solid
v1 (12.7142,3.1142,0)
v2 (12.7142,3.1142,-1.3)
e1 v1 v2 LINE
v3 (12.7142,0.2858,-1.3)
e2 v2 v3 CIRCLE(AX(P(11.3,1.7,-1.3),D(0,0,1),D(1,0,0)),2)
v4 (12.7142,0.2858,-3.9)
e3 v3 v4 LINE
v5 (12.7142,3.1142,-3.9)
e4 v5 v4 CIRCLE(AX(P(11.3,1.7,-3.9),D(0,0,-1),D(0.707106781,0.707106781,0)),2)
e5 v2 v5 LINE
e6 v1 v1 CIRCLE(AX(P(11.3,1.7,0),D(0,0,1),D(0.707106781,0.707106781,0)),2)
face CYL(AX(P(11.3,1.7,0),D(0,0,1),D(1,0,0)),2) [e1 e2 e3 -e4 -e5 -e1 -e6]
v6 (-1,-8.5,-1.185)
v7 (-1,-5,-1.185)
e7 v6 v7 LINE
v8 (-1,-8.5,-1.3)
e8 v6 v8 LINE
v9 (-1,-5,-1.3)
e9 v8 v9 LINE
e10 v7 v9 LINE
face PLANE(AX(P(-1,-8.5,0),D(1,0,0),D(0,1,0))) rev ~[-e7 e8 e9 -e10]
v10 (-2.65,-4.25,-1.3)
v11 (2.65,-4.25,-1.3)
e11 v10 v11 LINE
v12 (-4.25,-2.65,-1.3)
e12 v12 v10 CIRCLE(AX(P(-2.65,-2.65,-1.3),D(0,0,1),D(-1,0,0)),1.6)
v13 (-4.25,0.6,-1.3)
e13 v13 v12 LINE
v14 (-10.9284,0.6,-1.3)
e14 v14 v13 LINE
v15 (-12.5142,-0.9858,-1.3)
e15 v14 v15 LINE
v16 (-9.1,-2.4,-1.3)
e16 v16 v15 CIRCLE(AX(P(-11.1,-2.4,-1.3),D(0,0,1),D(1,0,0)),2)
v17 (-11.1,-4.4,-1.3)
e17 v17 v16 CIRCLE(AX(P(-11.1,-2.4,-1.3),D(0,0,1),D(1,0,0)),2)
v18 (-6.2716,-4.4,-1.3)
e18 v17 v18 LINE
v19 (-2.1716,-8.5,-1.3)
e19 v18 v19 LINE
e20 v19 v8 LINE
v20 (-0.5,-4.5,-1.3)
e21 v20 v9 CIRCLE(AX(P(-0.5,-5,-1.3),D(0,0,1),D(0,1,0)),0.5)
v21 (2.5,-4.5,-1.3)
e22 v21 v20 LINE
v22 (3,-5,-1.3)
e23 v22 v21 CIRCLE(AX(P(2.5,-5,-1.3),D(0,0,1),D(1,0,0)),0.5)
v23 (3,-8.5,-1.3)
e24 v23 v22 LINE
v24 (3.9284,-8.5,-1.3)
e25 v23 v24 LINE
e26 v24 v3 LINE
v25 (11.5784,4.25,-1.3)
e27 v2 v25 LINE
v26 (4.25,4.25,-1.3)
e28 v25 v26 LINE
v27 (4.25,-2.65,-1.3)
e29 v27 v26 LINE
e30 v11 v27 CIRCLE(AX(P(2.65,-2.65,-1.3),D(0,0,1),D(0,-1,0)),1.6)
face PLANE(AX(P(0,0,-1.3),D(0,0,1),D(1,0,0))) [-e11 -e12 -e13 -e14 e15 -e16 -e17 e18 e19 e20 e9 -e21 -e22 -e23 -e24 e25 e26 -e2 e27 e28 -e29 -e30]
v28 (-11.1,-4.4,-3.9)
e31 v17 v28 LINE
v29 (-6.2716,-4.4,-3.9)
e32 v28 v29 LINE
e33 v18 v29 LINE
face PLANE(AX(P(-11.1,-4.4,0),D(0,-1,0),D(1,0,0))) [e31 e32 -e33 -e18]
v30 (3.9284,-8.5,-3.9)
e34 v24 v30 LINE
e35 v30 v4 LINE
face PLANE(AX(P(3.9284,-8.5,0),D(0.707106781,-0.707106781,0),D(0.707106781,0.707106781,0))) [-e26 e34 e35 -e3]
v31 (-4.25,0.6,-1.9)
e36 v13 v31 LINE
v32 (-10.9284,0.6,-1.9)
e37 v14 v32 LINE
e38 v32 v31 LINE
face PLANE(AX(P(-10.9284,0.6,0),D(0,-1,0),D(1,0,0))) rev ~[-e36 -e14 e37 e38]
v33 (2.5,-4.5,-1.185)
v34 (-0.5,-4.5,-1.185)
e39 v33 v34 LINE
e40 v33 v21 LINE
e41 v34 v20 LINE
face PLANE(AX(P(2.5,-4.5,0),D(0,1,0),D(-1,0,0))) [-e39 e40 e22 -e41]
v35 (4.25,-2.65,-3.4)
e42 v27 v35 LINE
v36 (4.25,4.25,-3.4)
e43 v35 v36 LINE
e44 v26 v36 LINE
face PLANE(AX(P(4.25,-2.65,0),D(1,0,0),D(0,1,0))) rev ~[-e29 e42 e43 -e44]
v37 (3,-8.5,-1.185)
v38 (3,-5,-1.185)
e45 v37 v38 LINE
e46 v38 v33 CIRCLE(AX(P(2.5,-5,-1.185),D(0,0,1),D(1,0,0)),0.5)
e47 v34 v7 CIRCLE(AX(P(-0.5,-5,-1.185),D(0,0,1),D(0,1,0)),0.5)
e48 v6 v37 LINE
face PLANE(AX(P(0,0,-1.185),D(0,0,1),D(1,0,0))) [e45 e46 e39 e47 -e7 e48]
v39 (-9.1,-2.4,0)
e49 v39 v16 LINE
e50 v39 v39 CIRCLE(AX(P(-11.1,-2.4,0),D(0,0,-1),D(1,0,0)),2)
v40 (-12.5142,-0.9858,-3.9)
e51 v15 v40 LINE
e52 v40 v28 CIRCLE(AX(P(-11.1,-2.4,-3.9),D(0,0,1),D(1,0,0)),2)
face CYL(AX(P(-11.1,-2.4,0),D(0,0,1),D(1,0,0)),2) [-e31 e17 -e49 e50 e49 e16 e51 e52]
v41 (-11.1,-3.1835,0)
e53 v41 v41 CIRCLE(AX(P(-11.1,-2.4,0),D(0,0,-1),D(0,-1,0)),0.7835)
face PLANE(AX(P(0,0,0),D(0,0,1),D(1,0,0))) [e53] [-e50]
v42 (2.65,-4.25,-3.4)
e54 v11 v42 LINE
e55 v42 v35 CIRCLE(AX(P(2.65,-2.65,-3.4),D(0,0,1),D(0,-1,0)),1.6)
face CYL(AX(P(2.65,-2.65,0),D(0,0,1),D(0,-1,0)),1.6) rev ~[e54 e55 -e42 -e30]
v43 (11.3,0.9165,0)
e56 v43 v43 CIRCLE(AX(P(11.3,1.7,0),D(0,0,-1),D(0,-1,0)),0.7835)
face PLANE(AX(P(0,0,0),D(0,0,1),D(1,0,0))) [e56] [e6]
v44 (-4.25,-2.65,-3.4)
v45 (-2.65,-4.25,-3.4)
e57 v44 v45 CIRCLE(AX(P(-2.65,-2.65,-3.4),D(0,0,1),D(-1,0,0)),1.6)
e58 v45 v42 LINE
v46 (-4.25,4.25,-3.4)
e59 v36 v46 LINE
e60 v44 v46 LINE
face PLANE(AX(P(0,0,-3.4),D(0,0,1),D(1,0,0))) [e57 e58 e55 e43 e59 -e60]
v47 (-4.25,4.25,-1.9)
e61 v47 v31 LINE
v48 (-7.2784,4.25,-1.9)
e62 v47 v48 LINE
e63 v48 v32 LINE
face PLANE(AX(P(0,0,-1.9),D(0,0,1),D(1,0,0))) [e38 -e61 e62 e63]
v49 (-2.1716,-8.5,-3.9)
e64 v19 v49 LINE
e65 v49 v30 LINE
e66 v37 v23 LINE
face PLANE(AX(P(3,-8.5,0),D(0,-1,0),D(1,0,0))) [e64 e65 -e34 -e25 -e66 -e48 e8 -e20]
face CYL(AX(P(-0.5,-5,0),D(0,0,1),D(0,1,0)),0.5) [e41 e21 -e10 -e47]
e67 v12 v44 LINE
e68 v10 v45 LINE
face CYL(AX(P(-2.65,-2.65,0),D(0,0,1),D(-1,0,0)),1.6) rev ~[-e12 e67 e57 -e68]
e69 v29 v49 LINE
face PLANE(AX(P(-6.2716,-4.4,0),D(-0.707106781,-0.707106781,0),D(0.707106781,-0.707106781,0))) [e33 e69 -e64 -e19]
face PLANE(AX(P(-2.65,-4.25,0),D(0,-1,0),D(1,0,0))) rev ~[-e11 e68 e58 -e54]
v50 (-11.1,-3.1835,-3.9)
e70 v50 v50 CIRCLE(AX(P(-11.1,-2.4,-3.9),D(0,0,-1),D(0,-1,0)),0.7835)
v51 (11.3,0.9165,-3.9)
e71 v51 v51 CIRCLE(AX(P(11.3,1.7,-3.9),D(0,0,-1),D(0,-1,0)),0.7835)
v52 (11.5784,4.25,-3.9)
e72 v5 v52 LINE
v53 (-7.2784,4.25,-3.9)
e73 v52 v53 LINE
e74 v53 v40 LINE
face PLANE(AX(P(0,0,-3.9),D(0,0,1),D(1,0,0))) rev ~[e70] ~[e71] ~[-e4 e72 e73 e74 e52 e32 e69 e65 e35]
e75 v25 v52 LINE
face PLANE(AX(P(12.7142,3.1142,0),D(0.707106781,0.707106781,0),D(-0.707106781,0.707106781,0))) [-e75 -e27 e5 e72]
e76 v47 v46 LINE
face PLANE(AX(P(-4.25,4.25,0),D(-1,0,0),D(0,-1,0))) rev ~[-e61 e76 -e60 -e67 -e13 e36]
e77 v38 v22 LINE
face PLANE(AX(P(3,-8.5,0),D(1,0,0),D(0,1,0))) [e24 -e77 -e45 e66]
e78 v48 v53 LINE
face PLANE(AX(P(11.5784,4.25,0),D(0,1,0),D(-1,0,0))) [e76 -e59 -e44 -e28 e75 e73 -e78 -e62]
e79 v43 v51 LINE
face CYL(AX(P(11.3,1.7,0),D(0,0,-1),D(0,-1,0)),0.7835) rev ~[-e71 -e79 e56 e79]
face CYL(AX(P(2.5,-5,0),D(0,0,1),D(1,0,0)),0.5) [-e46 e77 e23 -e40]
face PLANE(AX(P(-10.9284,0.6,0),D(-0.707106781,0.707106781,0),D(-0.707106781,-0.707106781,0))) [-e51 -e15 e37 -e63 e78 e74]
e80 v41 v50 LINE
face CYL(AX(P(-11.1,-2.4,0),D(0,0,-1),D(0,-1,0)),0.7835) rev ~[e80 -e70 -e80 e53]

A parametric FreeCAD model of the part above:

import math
import FreeCAD as App
import Part
import Sketcher
from FreeCAD import Vector
Q = App.Units.Quantity


def add_polygon(sketch, points):
    """Adds a closed chain of lines whose ends are joined by coincident constraints."""
    first, n = sketch.GeometryCount, len(points)
    for a, b in zip(points, points[1:] + points[:1]):
        sketch.addGeometry(Part.LineSegment(App.Vector(*a, 0), App.Vector(*b, 0)), False)
    for i in range(n):
        sketch.addConstraint(Sketcher.Constraint("Coincident", first + i, 2, first + (i + 1) % n, 1))

doc = App.newDocument("Part")
body = doc.addObject("PartDesign::Body", "Body")

# Sketch on XY plane
sketch1 = body.newObject("Sketcher::SketchObject", "Sketch")
sketch1.AttachmentSupport = (doc.getObject("XY_Plane"), [""])
sketch1.MapMode = "FlatFace"
sketch1.addGeometry([
    Part.ArcOfCircle(Part.Circle(Vector(-11.1, -2.4, 0), Vector(0, 0, 1), 2), math.radians(135), math.radians(270)),  # 0
    Part.LineSegment(Vector(-11.1, -4.4, 0), Vector(-6.3, -4.4, 0)),  # 1
    Part.LineSegment(Vector(-6.3, -4.4, 0), Vector(-2.2, -8.5, 0)),  # 2
    Part.LineSegment(Vector(-2.2, -8.5, 0), Vector(3.9, -8.5, 0)),  # 3
    Part.LineSegment(Vector(3.9, -8.5, 0), Vector(12.7, 0.3, 0)),  # 4
    Part.ArcOfCircle(Part.Circle(Vector(11.3, 1.7, 0), Vector(0, 0, 1), 2), math.radians(-45), math.radians(45)),  # 5
    Part.LineSegment(Vector(12.7, 3.1, 0), Vector(11.6, 4.2, 0)),  # 6
    Part.LineSegment(Vector(11.6, 4.2, 0), Vector(-7.3, 4.2, 0)),  # 7
    Part.LineSegment(Vector(-7.3, 4.2, 0), Vector(-12.5, -1, 0)),  # 8
], False)
sketch1.addConstraint([
    Sketcher.Constraint("Tangent", 0, 2, 1, 1),
    Sketcher.Constraint("Coincident", 1, 2, 2, 1),
    Sketcher.Constraint("Coincident", 2, 2, 3, 1),
    Sketcher.Constraint("Coincident", 3, 2, 4, 1),
    Sketcher.Constraint("Tangent", 4, 2, 5, 1),
    Sketcher.Constraint("Tangent", 5, 2, 6, 1),
    Sketcher.Constraint("Coincident", 6, 2, 7, 1),
    Sketcher.Constraint("Coincident", 7, 2, 8, 1),
    Sketcher.Constraint("Tangent", 8, 2, 0, 1),
    Sketcher.Constraint("Horizontal", 1),
    Sketcher.Constraint("Horizontal", 3),
    Sketcher.Constraint("Horizontal", 7),
    Sketcher.Constraint("Equal", 0, 5),
    Sketcher.Constraint("Perpendicular", 2, 4),
    Sketcher.Constraint("Perpendicular", 4, 6),
    Sketcher.Constraint("Perpendicular", 6, 8),
    Sketcher.Constraint("Vertical", 4, 2, 5, 2),
    Sketcher.Constraint("Radius", 0, 2.0),
    Sketcher.Constraint("DistanceX", 0, 3, -1, 1, 11.1),
    Sketcher.Constraint("DistanceY", 0, 3, -1, 1, 2.4),
    Sketcher.Constraint("DistanceX", -1, 1, 5, 3, 11.3),
    Sketcher.Constraint("DistanceY", -1, 1, 5, 3, 1.7),
    Sketcher.Constraint("DistanceX", 3, 1, 3, 2, 6.1),
    Sketcher.Constraint("DistanceY", 2, 2, -1, 1, 8.5),
    Sketcher.Constraint("DistanceY", -1, 1, 6, 2, 4.25),
])
pad1 = body.newObject("PartDesign::Pad", "Pad")
pad1.Profile = sketch1
pad1.Length = 3.9
pad1.Reversed = True

# Sketch on XY plane
sketch2 = body.newObject("Sketcher::SketchObject", "Sketch001")
sketch2.AttachmentSupport = (doc.getObject("XY_Plane"), [""])
sketch2.MapMode = "FlatFace"
sketch2.addGeometry([
    Part.LineSegment(Vector(-4.2, 4.2, 0), Vector(-4.2, -2.6, 0)),  # 0
    Part.ArcOfCircle(Part.Circle(Vector(-2.6, -2.6, 0), Vector(0, 0, 1), 1.6), math.radians(180), math.radians(270)),  # 1
    Part.LineSegment(Vector(-2.6, -4.2, 0), Vector(2.6, -4.2, 0)),  # 2
    Part.ArcOfCircle(Part.Circle(Vector(2.6, -2.6, 0), Vector(0, 0, 1), 1.6), math.radians(-90), math.radians(0)),  # 3
    Part.LineSegment(Vector(4.2, -2.6, 0), Vector(4.2, 4.2, 0)),  # 4
    Part.LineSegment(Vector(4.2, 4.2, 0), Vector(-4.2, 4.2, 0)),  # 5
], False)
sketch2.addConstraint([
    Sketcher.Constraint("Tangent", 0, 2, 1, 1),
    Sketcher.Constraint("Tangent", 1, 2, 2, 1),
    Sketcher.Constraint("Tangent", 2, 2, 3, 1),
    Sketcher.Constraint("Tangent", 3, 2, 4, 1),
    Sketcher.Constraint("Coincident", 4, 2, 5, 1),
    Sketcher.Constraint("Coincident", 5, 2, 0, 1),
    Sketcher.Constraint("Vertical", 0),
    Sketcher.Constraint("Horizontal", 2),
    Sketcher.Constraint("Vertical", 4),
    Sketcher.Constraint("Horizontal", 5),
    Sketcher.Constraint("Equal", 1, 3),
    Sketcher.Constraint("Radius", 1, 1.6),
    Sketcher.Constraint("DistanceX", 2, 1, 2, 2, 5.3),
    Sketcher.Constraint("DistanceY", 0, 2, 0, 1, 6.9),
    Sketcher.Constraint("DistanceX", 1, 3, -1, 1, 2.65),
    Sketcher.Constraint("DistanceY", 1, 3, -1, 1, 2.65),
])
pocket1 = body.newObject("PartDesign::Pocket", "Pocket")
pocket1.Profile = sketch2
pocket1.Length = 3.4

# Sketch on XY plane
sketch3 = body.newObject("Sketcher::SketchObject", "Sketch002")
sketch3.AttachmentSupport = (doc.getObject("XY_Plane"), [""])
sketch3.MapMode = "FlatFace"
add_polygon(sketch3, [(-7.3, 4.2), (-10.9, 0.6), (-4.2, 0.6), (-4.2, 4.2)])  # lines 0-3
sketch3.addConstraint([
    Sketcher.Constraint("Horizontal", 1),
    Sketcher.Constraint("Vertical", 2),
    Sketcher.Constraint("Horizontal", 3),
    Sketcher.Constraint("Angle", 0, Q("-135 deg")),
    Sketcher.Constraint("DistanceY", 2, 1, 2, 2, 3.65),
    Sketcher.Constraint("DistanceY", -1, 1, 0, 2, 0.6),
    Sketcher.Constraint("DistanceX", 1, 2, -1, 1, 4.25),
    Sketcher.Constraint("DistanceX", 1, 1, 1, 2, 6.6784),
])
pocket2 = body.newObject("PartDesign::Pocket", "Pocket001")
pocket2.Profile = sketch3
pocket2.Length = 1.9

# Sketch on XY plane
sketch4 = body.newObject("Sketcher::SketchObject", "Sketch003")
sketch4.AttachmentSupport = (doc.getObject("XY_Plane"), [""])
sketch4.MapMode = "FlatFace"
sketch4.addGeometry([
    Part.ArcOfCircle(Part.Circle(Vector(-11.1, -2.4, 0), Vector(0, 0, 1), 2), math.radians(-90), math.radians(135)),  # 0
    Part.LineSegment(Vector(-11.1, -4.4, 0), Vector(-6.3, -4.4, 0)),  # 1
    Part.LineSegment(Vector(-6.3, -4.4, 0), Vector(-2.2, -8.5, 0)),  # 2
    Part.LineSegment(Vector(-2.2, -8.5, 0), Vector(-1, -8.5, 0)),  # 3
    Part.LineSegment(Vector(-1, -8.5, 0), Vector(-1, -5, 0)),  # 4
    Part.ArcOfCircle(Part.Circle(Vector(-0.5, -5, 0), Vector(0, 0, 1), 0.5), math.radians(90), math.radians(180)),  # 5
    Part.LineSegment(Vector(-0.5, -4.5, 0), Vector(2.5, -4.5, 0)),  # 6
    Part.ArcOfCircle(Part.Circle(Vector(2.5, -5, 0), Vector(0, 0, 1), 0.5), math.radians(0), math.radians(90)),  # 7
    Part.LineSegment(Vector(3, -5, 0), Vector(3, -8.5, 0)),  # 8
    Part.LineSegment(Vector(3, -8.5, 0), Vector(3.9, -8.5, 0)),  # 9
    Part.LineSegment(Vector(3.9, -8.5, 0), Vector(12.7, 0.3, 0)),  # 10
    Part.ArcOfCircle(Part.Circle(Vector(11.3, 1.7, 0), Vector(0, 0, 1), 2), math.radians(45), math.radians(315)),  # 11
    Part.LineSegment(Vector(12.7, 3.1, 0), Vector(11.6, 4.2, 0)),  # 12
    Part.LineSegment(Vector(11.6, 4.2, 0), Vector(4.2, 4.2, 0)),  # 13
    Part.LineSegment(Vector(4.2, 4.2, 0), Vector(4.2, -2.6, 0)),  # 14
    Part.ArcOfCircle(Part.Circle(Vector(2.6, -2.6, 0), Vector(0, 0, 1), 1.6), math.radians(-90), math.radians(0)),  # 15
    Part.LineSegment(Vector(2.6, -4.2, 0), Vector(-2.6, -4.2, 0)),  # 16
    Part.ArcOfCircle(Part.Circle(Vector(-2.6, -2.6, 0), Vector(0, 0, 1), 1.6), math.radians(180), math.radians(270)),  # 17
    Part.LineSegment(Vector(-4.2, -2.6, 0), Vector(-4.2, 0.6, 0)),  # 18
    Part.LineSegment(Vector(-4.2, 0.6, 0), Vector(-10.9, 0.6, 0)),  # 19
    Part.LineSegment(Vector(-10.9, 0.6, 0), Vector(-12.5, -1, 0)),  # 20
], False)
sketch4.addConstraint([
    Sketcher.Constraint("Tangent", 0, 1, 1, 1),
    Sketcher.Constraint("Coincident", 1, 2, 2, 1),
    Sketcher.Constraint("Coincident", 2, 2, 3, 1),
    Sketcher.Constraint("Coincident", 3, 2, 4, 1),
    Sketcher.Constraint("Tangent", 4, 2, 5, 2),
    Sketcher.Constraint("Tangent", 5, 1, 6, 1),
    Sketcher.Constraint("Tangent", 6, 2, 7, 2),
    Sketcher.Constraint("Tangent", 7, 1, 8, 1),
    Sketcher.Constraint("Coincident", 8, 2, 9, 1),
    Sketcher.Constraint("Coincident", 9, 2, 10, 1),
    Sketcher.Constraint("Tangent", 10, 2, 11, 2),
    Sketcher.Constraint("Tangent", 11, 1, 12, 1),
    Sketcher.Constraint("Coincident", 12, 2, 13, 1),
    Sketcher.Constraint("Coincident", 13, 2, 14, 1),
    Sketcher.Constraint("Tangent", 14, 2, 15, 2),
    Sketcher.Constraint("Tangent", 15, 1, 16, 1),
    Sketcher.Constraint("Tangent", 16, 2, 17, 2),
    Sketcher.Constraint("Tangent", 17, 1, 18, 1),
    Sketcher.Constraint("Coincident", 18, 2, 19, 1),
    Sketcher.Constraint("Coincident", 19, 2, 20, 1),
    Sketcher.Constraint("Tangent", 20, 2, 0, 2),
    Sketcher.Constraint("Horizontal", 1),
    Sketcher.Constraint("Horizontal", 3),
    Sketcher.Constraint("Vertical", 4),
    Sketcher.Constraint("Horizontal", 6),
    Sketcher.Constraint("Vertical", 8),
    Sketcher.Constraint("Horizontal", 9),
    Sketcher.Constraint("Horizontal", 13),
    Sketcher.Constraint("Vertical", 14),
    Sketcher.Constraint("Horizontal", 16),
    Sketcher.Constraint("Vertical", 18),
    Sketcher.Constraint("Horizontal", 19),
    Sketcher.Constraint("Equal", 5, 7),
    Sketcher.Constraint("Equal", 0, 11),
    Sketcher.Constraint("Equal", 15, 17),
    Sketcher.Constraint("Perpendicular", 2, 10),
    Sketcher.Constraint("Perpendicular", 10, 12),
    Sketcher.Constraint("Perpendicular", 12, 20),
    Sketcher.Constraint("Horizontal", 3, 2, 8, 2),
    Sketcher.Constraint("Vertical", 10, 2, 11, 1),
    Sketcher.Constraint("Radius", 0, 2.0),
    Sketcher.Constraint("Radius", 5, 0.5),
    Sketcher.Constraint("Radius", 15, 1.6),
    Sketcher.Constraint("DistanceX", 6, 1, 6, 2, 3.0),
    Sketcher.Constraint("DistanceX", 3, 2, -1, 1, 1.0),
    Sketcher.Constraint("DistanceY", 8, 2, 6, 2, 4.0),
    Sketcher.Constraint("DistanceY", 0, 3, 19, 2, 3.0),
    Sketcher.Constraint("DistanceX", 0, 3, -1, 1, 11.1),
    Sketcher.Constraint("DistanceY", 0, 3, -1, 1, 2.4),
    Sketcher.Constraint("DistanceX", -1, 1, 11, 3, 11.3),
    Sketcher.Constraint("DistanceY", -1, 1, 11, 3, 1.7),
    Sketcher.Constraint("DistanceX", 17, 3, 5, 3, 2.15),
    Sketcher.Constraint("DistanceX", 16, 2, 16, 1, 5.3),
    Sketcher.Constraint("DistanceY", 14, 2, 14, 1, 6.9),
    Sketcher.Constraint("DistanceY", 5, 3, -1, 1, 5.0),
    Sketcher.Constraint("DistanceY", 18, 1, 18, 2, 3.25),
    Sketcher.Constraint("DistanceX", 1, 1, 1, 2, 4.8284),
])
pocket3 = body.newObject("PartDesign::Pocket", "Pocket002")
pocket3.Profile = sketch4
pocket3.Length = 1.3

# Sketch on XY plane
sketch5 = body.newObject("Sketcher::SketchObject", "Sketch004")
sketch5.AttachmentSupport = (doc.getObject("XY_Plane"), [""])
sketch5.MapMode = "FlatFace"
sketch5.addGeometry([
    Part.LineSegment(Vector(-1, -5, 0), Vector(-1, -8.5, 0)),  # 0
    Part.LineSegment(Vector(-1, -8.5, 0), Vector(3, -8.5, 0)),  # 1
    Part.LineSegment(Vector(3, -8.5, 0), Vector(3, -5, 0)),  # 2
    Part.ArcOfCircle(Part.Circle(Vector(2.5, -5, 0), Vector(0, 0, 1), 0.5), math.radians(0), math.radians(90)),  # 3
    Part.LineSegment(Vector(2.5, -4.5, 0), Vector(-0.5, -4.5, 0)),  # 4
    Part.ArcOfCircle(Part.Circle(Vector(-0.5, -5, 0), Vector(0, 0, 1), 0.5), math.radians(90), math.radians(180)),  # 5
], False)
sketch5.addConstraint([
    Sketcher.Constraint("Coincident", 0, 2, 1, 1),
    Sketcher.Constraint("Coincident", 1, 2, 2, 1),
    Sketcher.Constraint("Tangent", 2, 2, 3, 1),
    Sketcher.Constraint("Tangent", 3, 2, 4, 1),
    Sketcher.Constraint("Tangent", 4, 2, 5, 1),
    Sketcher.Constraint("Tangent", 5, 2, 0, 1),
    Sketcher.Constraint("Vertical", 0),
    Sketcher.Constraint("Horizontal", 1),
    Sketcher.Constraint("Vertical", 2),
    Sketcher.Constraint("Horizontal", 4),
    Sketcher.Constraint("Equal", 3, 5),
    Sketcher.Constraint("Radius", 3, 0.5),
    Sketcher.Constraint("DistanceX", 1, 1, 1, 2, 4.0),
    Sketcher.Constraint("DistanceX", 0, 2, -1, 1, 1.0),
    Sketcher.Constraint("DistanceY", 1, 2, 3, 2, 4.0),
    Sketcher.Constraint("DistanceY", 3, 3, -1, 1, 5.0),
])
pocket4 = body.newObject("PartDesign::Pocket", "Pocket003")
pocket4.Profile = sketch5
pocket4.Length = 1.185

# Sketch on XY plane
sketch6 = body.newObject("Sketcher::SketchObject", "Sketch005")
sketch6.AttachmentSupport = (doc.getObject("XY_Plane"), [""])
sketch6.MapMode = "FlatFace"
sketch6.addGeometry([
    Part.Circle(Vector(-11.1, -2.4, 0), Vector(0, 0, 1), 0.8),
    Part.Circle(Vector(11.3, 1.7, 0), Vector(0, 0, 1), 0.8),
], False)
sketch6.addConstraint([
    Sketcher.Constraint("Equal", 0, 1),
    Sketcher.Constraint("Diameter", 0, 1.567),
    Sketcher.Constraint("DistanceX", 0, 3, -1, 1, 11.1),
    Sketcher.Constraint("DistanceY", 0, 3, -1, 1, 2.4),
    Sketcher.Constraint("DistanceX", -1, 1, 1, 3, 11.3),
    Sketcher.Constraint("DistanceY", -1, 1, 1, 3, 1.7),
])
doc.recompute()
hole = body.newObject("PartDesign::Hole", "Hole")
hole.Profile = sketch6
hole.ThreadType = "None"
hole.Diameter = 1.567
hole.DepthType = "ThroughAll"

doc.recompute()
